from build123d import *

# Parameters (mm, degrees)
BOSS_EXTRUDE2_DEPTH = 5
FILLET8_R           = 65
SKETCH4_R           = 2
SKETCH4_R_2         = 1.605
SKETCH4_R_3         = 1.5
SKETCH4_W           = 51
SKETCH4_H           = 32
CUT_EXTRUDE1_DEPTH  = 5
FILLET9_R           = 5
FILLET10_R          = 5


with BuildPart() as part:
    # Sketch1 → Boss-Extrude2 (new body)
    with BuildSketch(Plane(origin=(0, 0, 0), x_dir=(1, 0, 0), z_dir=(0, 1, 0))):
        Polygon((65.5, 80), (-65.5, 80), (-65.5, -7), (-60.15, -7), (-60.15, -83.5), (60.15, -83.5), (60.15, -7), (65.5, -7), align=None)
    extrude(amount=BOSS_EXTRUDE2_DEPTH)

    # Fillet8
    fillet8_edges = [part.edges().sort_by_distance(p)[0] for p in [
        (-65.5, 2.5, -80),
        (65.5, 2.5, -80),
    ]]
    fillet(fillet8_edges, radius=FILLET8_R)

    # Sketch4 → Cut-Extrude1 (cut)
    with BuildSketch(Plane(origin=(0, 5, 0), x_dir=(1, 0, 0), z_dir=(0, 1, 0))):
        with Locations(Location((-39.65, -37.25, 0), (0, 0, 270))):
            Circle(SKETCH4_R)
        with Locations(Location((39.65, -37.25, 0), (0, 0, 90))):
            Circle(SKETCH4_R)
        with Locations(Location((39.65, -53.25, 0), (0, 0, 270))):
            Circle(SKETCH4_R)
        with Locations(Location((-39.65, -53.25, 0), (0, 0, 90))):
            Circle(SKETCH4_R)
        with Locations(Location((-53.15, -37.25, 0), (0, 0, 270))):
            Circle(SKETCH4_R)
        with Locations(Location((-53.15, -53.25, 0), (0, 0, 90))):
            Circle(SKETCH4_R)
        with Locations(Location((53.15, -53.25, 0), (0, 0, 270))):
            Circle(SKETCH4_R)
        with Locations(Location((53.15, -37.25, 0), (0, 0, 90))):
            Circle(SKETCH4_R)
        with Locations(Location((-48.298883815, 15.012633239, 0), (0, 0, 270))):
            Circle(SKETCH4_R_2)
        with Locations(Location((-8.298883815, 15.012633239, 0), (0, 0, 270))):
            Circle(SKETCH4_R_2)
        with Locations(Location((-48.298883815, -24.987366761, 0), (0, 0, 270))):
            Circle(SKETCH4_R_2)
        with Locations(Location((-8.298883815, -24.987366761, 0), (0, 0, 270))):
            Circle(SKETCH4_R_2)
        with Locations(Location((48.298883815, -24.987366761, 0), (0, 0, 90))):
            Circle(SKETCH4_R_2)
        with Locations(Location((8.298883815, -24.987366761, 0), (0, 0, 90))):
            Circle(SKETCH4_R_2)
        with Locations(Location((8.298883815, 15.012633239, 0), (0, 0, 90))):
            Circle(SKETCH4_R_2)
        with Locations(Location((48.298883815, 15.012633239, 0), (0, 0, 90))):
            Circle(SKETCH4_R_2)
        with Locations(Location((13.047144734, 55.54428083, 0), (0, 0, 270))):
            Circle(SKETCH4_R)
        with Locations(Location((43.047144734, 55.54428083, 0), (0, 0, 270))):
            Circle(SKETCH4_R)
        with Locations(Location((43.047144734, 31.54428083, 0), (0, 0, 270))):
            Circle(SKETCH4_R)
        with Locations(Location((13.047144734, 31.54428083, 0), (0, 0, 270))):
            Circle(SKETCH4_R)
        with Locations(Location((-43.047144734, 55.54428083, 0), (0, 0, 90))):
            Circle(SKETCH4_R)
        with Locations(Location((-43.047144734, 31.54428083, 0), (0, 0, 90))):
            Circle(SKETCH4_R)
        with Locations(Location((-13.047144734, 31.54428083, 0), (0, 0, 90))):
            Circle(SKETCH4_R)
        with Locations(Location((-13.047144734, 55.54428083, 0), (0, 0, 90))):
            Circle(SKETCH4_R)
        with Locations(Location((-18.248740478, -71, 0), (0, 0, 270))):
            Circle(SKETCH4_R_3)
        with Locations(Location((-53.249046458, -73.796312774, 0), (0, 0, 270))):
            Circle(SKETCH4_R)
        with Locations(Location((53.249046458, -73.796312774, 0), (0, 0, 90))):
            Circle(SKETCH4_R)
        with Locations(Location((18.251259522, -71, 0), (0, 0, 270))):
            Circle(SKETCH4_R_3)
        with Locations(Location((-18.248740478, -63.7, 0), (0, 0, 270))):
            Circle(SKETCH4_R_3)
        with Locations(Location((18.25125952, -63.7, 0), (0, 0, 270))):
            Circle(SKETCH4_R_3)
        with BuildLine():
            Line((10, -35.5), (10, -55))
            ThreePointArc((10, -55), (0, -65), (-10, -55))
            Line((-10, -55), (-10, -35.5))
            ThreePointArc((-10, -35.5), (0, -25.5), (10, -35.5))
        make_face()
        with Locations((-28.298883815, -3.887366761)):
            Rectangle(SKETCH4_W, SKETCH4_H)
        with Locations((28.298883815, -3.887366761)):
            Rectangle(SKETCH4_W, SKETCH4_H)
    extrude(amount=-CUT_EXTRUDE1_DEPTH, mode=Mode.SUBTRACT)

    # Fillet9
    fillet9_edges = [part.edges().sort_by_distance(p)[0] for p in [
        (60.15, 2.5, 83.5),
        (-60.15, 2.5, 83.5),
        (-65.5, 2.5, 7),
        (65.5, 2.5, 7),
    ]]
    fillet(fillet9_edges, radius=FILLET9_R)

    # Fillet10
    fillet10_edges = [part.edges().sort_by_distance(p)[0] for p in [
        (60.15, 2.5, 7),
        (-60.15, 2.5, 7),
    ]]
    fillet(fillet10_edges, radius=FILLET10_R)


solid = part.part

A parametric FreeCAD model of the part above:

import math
import FreeCAD as App
import Part
import Sketcher

V = App.Vector
Q = App.Units.Quantity


def edges_at(feature, points):
    """Names of the edges that pass closest to the given points."""
    edges = feature.Shape.Edges
    near = lambda p: min(range(len(edges)), key=lambda i: edges[i].distToShape(Part.Vertex(*p))[0])
    return sorted({f"Edge{near(p) + 1}" for p in points})


def add_polygon(sketch, points):
    """Adds a closed chain of lines whose ends are joined by coincident constraints."""
    first, n = sketch.GeometryCount, len(points)
    for a, b in zip(points, points[1:] + points[:1]):
        sketch.addGeometry(Part.LineSegment(App.Vector(*a, 0), App.Vector(*b, 0)), False)
    for i in range(n):
        sketch.addConstraint(Sketcher.Constraint("Coincident", first + i, 2, first + (i + 1) % n, 1))

doc = App.newDocument("Part")
body = doc.addObject("PartDesign::Body", "Body")

# Sketch on XZ plane
sketch1 = body.newObject("Sketcher::SketchObject", "Sketch")
sketch1.AttachmentSupport = (doc.getObject("XZ_Plane"), [""])
sketch1.MapMode = "FlatFace"
add_polygon(sketch1, [(66, -80), (-66, -80), (-66, 7), (-60, 7), (-60, 84), (60, 84), (60, 7), (66, 7)])  # lines 0-7
sketch1.addConstraint(Sketcher.Constraint("Horizontal", 0))
sketch1.addConstraint(Sketcher.Constraint("Vertical", 1))
sketch1.addConstraint(Sketcher.Constraint("Horizontal", 2))
sketch1.addConstraint(Sketcher.Constraint("Vertical", 3))
sketch1.addConstraint(Sketcher.Constraint("Horizontal", 4))
sketch1.addConstraint(Sketcher.Constraint("Vertical", 5))
sketch1.addConstraint(Sketcher.Constraint("Horizontal", 6))
sketch1.addConstraint(Sketcher.Constraint("Vertical", 7))
sketch1.addConstraint(Sketcher.Constraint("Symmetric", 2, 2, 5, 2, -2))
sketch1.addConstraint(Sketcher.Constraint("Equal", 2, 6))
sketch1.addConstraint(Sketcher.Constraint("DistanceX", 0, 2, 0, 1, Q("131 mm")))
sketch1.addConstraint(Sketcher.Constraint("DistanceY", 1, 1, 1, 2, Q("87 mm")))
sketch1.addConstraint(Sketcher.Constraint("DistanceX", 4, 1, 4, 2, Q("120.3 mm")))
sketch1.addConstraint(Sketcher.Constraint("DistanceY", 3, 1, 3, 2, Q("76.5 mm")))
sketch1.addConstraint(Sketcher.Constraint("DistanceY", 0, 2, -1, 1, Q("80 mm")))
pad1 = body.newObject("PartDesign::Pad", "Pad")
pad1.Profile = sketch1
pad1.Length = 5
pad1.Reversed = True
doc.recompute()

fillet = body.newObject("PartDesign::Fillet", "Fillet")
fillet.Base = (pad1, edges_at(pad1, [(-65.5, 2.5, -80), (65.5, 2.5, -80)]))
fillet.Radius = 65

# Sketch on XZ plane
sketch2 = body.newObject("Sketcher::SketchObject", "Sketch001")
sketch2.AttachmentSupport = (doc.getObject("XZ_Plane"), [""])
sketch2.MapMode = "FlatFace"
sketch2.AttachmentOffset = App.Placement(V(0, 0, -5), App.Rotation())
sketch2.addGeometry(Part.Circle(V(-39.6, 37.2, 0), V(0, 0, 1), 2), False)  # 0
sketch2.addGeometry(Part.Circle(V(39.6, 37.2, 0), V(0, 0, 1), 2), False)  # 1
sketch2.addGeometry(Part.Circle(V(39.6, 53.2, 0), V(0, 0, 1), 2), False)  # 2
sketch2.addGeometry(Part.Circle(V(-39.6, 53.2, 0), V(0, 0, 1), 2), False)  # 3
sketch2.addGeometry(Part.Circle(V(-53.1, 37.2, 0), V(0, 0, 1), 2), False)  # 4
sketch2.addGeometry(Part.Circle(V(-53.1, 53.2, 0), V(0, 0, 1), 2), False)  # 5
sketch2.addGeometry(Part.Circle(V(53.1, 53.2, 0), V(0, 0, 1), 2), False)  # 6
sketch2.addGeometry(Part.Circle(V(53.1, 37.2, 0), V(0, 0, 1), 2), False)  # 7
sketch2.addGeometry(Part.Circle(V(-48.3, -15, 0), V(0, 0, 1), 1.6), False)  # 8
sketch2.addGeometry(Part.Circle(V(-8.3, -15, 0), V(0, 0, 1), 1.6), False)  # 9
sketch2.addGeometry(Part.Circle(V(-48.3, 25, 0), V(0, 0, 1), 1.6), False)  # 10
sketch2.addGeometry(Part.Circle(V(-8.3, 25, 0), V(0, 0, 1), 1.6), False)  # 11
sketch2.addGeometry(Part.Circle(V(48.3, 25, 0), V(0, 0, 1), 1.6), False)  # 12
sketch2.addGeometry(Part.Circle(V(8.3, 25, 0), V(0, 0, 1), 1.6), False)  # 13
sketch2.addGeometry(Part.Circle(V(8.3, -15, 0), V(0, 0, 1), 1.6), False)  # 14
sketch2.addGeometry(Part.Circle(V(48.3, -15, 0), V(0, 0, 1), 1.6), False)  # 15
sketch2.addGeometry(Part.Circle(V(13, -55.5, 0), V(0, 0, 1), 2), False)  # 16
sketch2.addGeometry(Part.Circle(V(43, -55.5, 0), V(0, 0, 1), 2), False)  # 17
sketch2.addGeometry(Part.Circle(V(43, -31.5, 0), V(0, 0, 1), 2), False)  # 18
sketch2.addGeometry(Part.Circle(V(13, -31.5, 0), V(0, 0, 1), 2), False)  # 19
sketch2.addGeometry(Part.Circle(V(-43, -55.5, 0), V(0, 0, 1), 2), False)  # 20
sketch2.addGeometry(Part.Circle(V(-43, -31.5, 0), V(0, 0, 1), 2), False)  # 21
sketch2.addGeometry(Part.Circle(V(-13, -31.5, 0), V(0, 0, 1), 2), False)  # 22
sketch2.addGeometry(Part.Circle(V(-13, -55.5, 0), V(0, 0, 1), 2), False)  # 23
sketch2.addGeometry(Part.Circle(V(-18.2, 71, 0), V(0, 0, 1), 1.5), False)  # 24
sketch2.addGeometry(Part.Circle(V(-53.2, 73.8, 0), V(0, 0, 1), 2), False)  # 25
sketch2.addGeometry(Part.Circle(V(53.2, 73.8, 0), V(0, 0, 1), 2), False)  # 26
sketch2.addGeometry(Part.Circle(V(18.3, 71, 0), V(0, 0, 1), 1.5), False)  # 27
sketch2.addGeometry(Part.Circle(V(-18.2, 63.7, 0), V(0, 0, 1), 1.5), False)  # 28
sketch2.addGeometry(Part.Circle(V(18.3, 63.7, 0), V(0, 0, 1), 1.5), False)  # 29
sketch2.addGeometry(Part.LineSegment(V(10, 55, 0), V(10, 35.5, 0)), False)  # 30
sketch2.addGeometry(Part.ArcOfCircle(Part.Circle(V(0, 35.5, 0), V(0, 0, 1), 10), math.radians(180), math.radians(360)), False)  # 31
sketch2.addGeometry(Part.LineSegment(V(-10, 35.5, 0), V(-10, 55, 0)), False)  # 32
sketch2.addGeometry(Part.ArcOfCircle(Part.Circle(V(0, 55, 0), V(0, 0, 1), 10), math.radians(0), math.radians(180)), False)  # 33
add_polygon(sketch2, [(-53.8, -12.1), (-53.8, 19.9), (-2.8, 19.9), (-2.8, -12.1)])  # lines 34-37
add_polygon(sketch2, [(2.8, -12.1), (2.8, 19.9), (53.8, 19.9), (53.8, -12.1)])  # lines 38-41
sketch2.addConstraint(Sketcher.Constraint("Tangent", 30, 2, 31, 2))
sketch2.addConstraint(Sketcher.Constraint("Tangent", 31, 1, 32, 1))
sketch2.addConstraint(Sketcher.Constraint("Tangent", 32, 2, 33, 2))
sketch2.addConstraint(Sketcher.Constraint("Tangent", 33, 1, 30, 1))
sketch2.addConstraint(Sketcher.Constraint("Vertical", 30))
sketch2.addConstraint(Sketcher.Constraint("Vertical", 32))
sketch2.addConstraint(Sketcher.Constraint("Vertical", 34))
sketch2.addConstraint(Sketcher.Constraint("Horizontal", 35))
sketch2.addConstraint(Sketcher.Constraint("Vertical", 36))
sketch2.addConstraint(Sketcher.Constraint("Horizontal", 37))
sketch2.addConstraint(Sketcher.Constraint("Vertical", 38))
sketch2.addConstraint(Sketcher.Constraint("Horizontal", 39))
sketch2.addConstraint(Sketcher.Constraint("Vertical", 40))
sketch2.addConstraint(Sketcher.Constraint("Horizontal", 41))
sketch2.addConstraint(Sketcher.Constraint("Equal", 0, 1))
sketch2.addConstraint(Sketcher.Constraint("Equal", 1, 2))
sketch2.addConstraint(Sketcher.Constraint("Equal", 2, 3))
sketch2.addConstraint(Sketcher.Constraint("Equal", 3, 4))
sketch2.addConstraint(Sketcher.Constraint("Equal", 4, 5))
sketch2.addConstraint(Sketcher.Constraint("Equal", 5, 6))
sketch2.addConstraint(Sketcher.Constraint("Equal", 6, 7))
sketch2.addConstraint(Sketcher.Constraint("Equal", 8, 9))
sketch2.addConstraint(Sketcher.Constraint("Equal", 9, 10))
sketch2.addConstraint(Sketcher.Constraint("Equal", 10, 11))
sketch2.addConstraint(Sketcher.Constraint("Equal", 11, 12))
sketch2.addConstraint(Sketcher.Constraint("Equal", 12, 13))
sketch2.addConstraint(Sketcher.Constraint("Equal", 13, 14))
sketch2.addConstraint(Sketcher.Constraint("Equal", 14, 15))
sketch2.addConstraint(Sketcher.Constraint("Equal", 7, 16))
sketch2.addConstraint(Sketcher.Constraint("Equal", 16, 17))
sketch2.addConstraint(Sketcher.Constraint("Equal", 17, 18))
sketch2.addConstraint(Sketcher.Constraint("Equal", 18, 19))
sketch2.addConstraint(Sketcher.Constraint("Equal", 19, 20))
sketch2.addConstraint(Sketcher.Constraint("Equal", 20, 21))
sketch2.addConstraint(Sketcher.Constraint("Equal", 21, 22))
sketch2.addConstraint(Sketcher.Constraint("Equal", 22, 23))
sketch2.addConstraint(Sketcher.Constraint("Equal", 23, 25))
sketch2.addConstraint(Sketcher.Constraint("Equal", 25, 26))
sketch2.addConstraint(Sketcher.Constraint("Equal", 24, 27))
sketch2.addConstraint(Sketcher.Constraint("Equal", 27, 28))
sketch2.addConstraint(Sketcher.Constraint("Equal", 28, 29))
sketch2.addConstraint(Sketcher.Constraint("Symmetric", 0, 3, 1, 3, -2))
sketch2.addConstraint(Sketcher.Constraint("Symmetric", 2, 3, 3, 3, -2))
sketch2.addConstraint(Sketcher.Constraint("Symmetric", 5, 3, 6, 3, -2))
sketch2.addConstraint(Sketcher.Constraint("Symmetric", 4, 3, 7, 3, -2))
sketch2.addConstraint(Sketcher.Constraint("Symmetric", 10, 3, 12, 3, -2))
sketch2.addConstraint(Sketcher.Constraint("Symmetric", 11, 3, 13, 3, -2))
sketch2.addConstraint(Sketcher.Constraint("Symmetric", 9, 3, 14, 3, -2))
sketch2.addConstraint(Sketcher.Constraint("Symmetric", 8, 3, 15, 3, -2))
sketch2.addConstraint(Sketcher.Constraint("Symmetric", 17, 3, 20, 3, -2))
sketch2.addConstraint(Sketcher.Constraint("Symmetric", 18, 3, 21, 3, -2))
sketch2.addConstraint(Sketcher.Constraint("Symmetric", 19, 3, 22, 3, -2))
sketch2.addConstraint(Sketcher.Constraint("Symmetric", 16, 3, 23, 3, -2))
sketch2.addConstraint(Sketcher.Constraint("Symmetric", 25, 3, 26, 3, -2))
sketch2.addConstraint(Sketcher.Constraint("Symmetric", 35, 2, 38, 2, -2))
sketch2.addConstraint(Sketcher.Constraint("Symmetric", 37, 2, 40, 2, -2))
sketch2.addConstraint(Sketcher.Constraint("PointOnObject", 31, 3, -2))
sketch2.addConstraint(Sketcher.Constraint("Horizontal", 1, 3, 4, 3))
sketch2.addConstraint(Sketcher.Constraint("Horizontal", 3, 3, 5, 3))
sketch2.addConstraint(Sketcher.Constraint("Horizontal", 8, 3, 9, 3))
sketch2.addConstraint(Sketcher.Constraint("Horizontal", 10, 3, 11, 3))
sketch2.addConstraint(Sketcher.Constraint("Horizontal", 16, 3, 17, 3))
sketch2.addConstraint(Sketcher.Constraint("Horizontal", 18, 3, 19, 3))
sketch2.addConstraint(Sketcher.Constraint("Horizontal", 24, 3, 27, 3))
sketch2.addConstraint(Sketcher.Constraint("Horizontal", 28, 3, 29, 3))
sketch2.addConstraint(Sketcher.Constraint("Vertical", 1, 3, 2, 3))
sketch2.addConstraint(Sketcher.Constraint("Vertical", 4, 3, 5, 3))
sketch2.addConstraint(Sketcher.Constraint("Vertical", 8, 3, 10, 3))
sketch2.addConstraint(Sketcher.Constraint("Vertical", 9, 3, 11, 3))
sketch2.addConstraint(Sketcher.Constraint("Vertical", 17, 3, 18, 3))
sketch2.addConstraint(Sketcher.Constraint("Vertical", 16, 3, 19, 3))
sketch2.addConstraint(Sketcher.Constraint("Vertical", 24, 3, 28, 3))
sketch2.addConstraint(Sketcher.Constraint("Vertical", 27, 3, 29, 3))
sketch2.addConstraint(Sketcher.Constraint("Diameter", 0, Q("4 mm")))
sketch2.addConstraint(Sketcher.Constraint("Diameter", 24, Q("3 mm")))
sketch2.addConstraint(Sketcher.Constraint("Radius", 31, Q("10 mm")))
sketch2.addConstraint(Sketcher.Constraint("Diameter", 8, Q("3.21 mm")))
sketch2.addConstraint(Sketcher.Constraint("DistanceX", 35, 1, 35, 2, Q("51 mm")))
sketch2.addConstraint(Sketcher.Constraint("DistanceY", 34, 1, 34, 2, Q("32 mm")))
sketch2.addConstraint(Sketcher.Constraint("DistanceY", 30, 2, 30, 1, Q("19.5 mm")))
sketch2.addConstraint(Sketcher.Constraint("DistanceY", -1, 1, 24, 3, Q("71 mm")))
sketch2.addConstraint(Sketcher.Constraint("DistanceY", -1, 1, 33, 3, Q("55 mm")))
sketch2.addConstraint(Sketcher.Constraint("DistanceY", 1, 3, 2, 3, Q("16 mm")))
sketch2.addConstraint(Sketcher.Constraint("DistanceX", 8, 3, 9, 3, Q("40 mm")))
sketch2.addConstraint(Sketcher.Constraint("DistanceY", 8, 3, 10, 3, Q("40 mm")))
sketch2.addConstraint(Sketcher.Constraint("DistanceX", 16, 3, 17, 3, Q("30 mm")))
sketch2.addConstraint(Sketcher.Constraint("DistanceY", 17, 3, 18, 3, Q("24 mm")))
sketch2.addConstraint(Sketcher.Constraint("DistanceY", -1, 1, 28, 3, Q("63.7 mm")))
sketch2.addConstraint(Sketcher.Constraint("DistanceX", 0, 3, 1, 3, Q("79.3 mm")))
sketch2.addConstraint(Sketcher.Constraint("DistanceX", 4, 3, 0, 3, Q("13.5 mm")))
sketch2.addConstraint(Sketcher.Constraint("DistanceX", 24, 3, 27, 3, Q("36.5 mm")))
sketch2.addConstraint(Sketcher.Constraint("DistanceX", 34, 2, 10, 3, Q("5.5 mm")))
sketch2.addConstraint(Sketcher.Constraint("DistanceY", 34, 2, 10, 3, Q("5.1 mm")))
sketch2.addConstraint(Sketcher.Constraint("DistanceY", -1, 1, 0, 3, Q("37.25 mm")))
sketch2.addConstraint(Sketcher.Constraint("DistanceY", 16, 3, -1, 1, Q("55.544281 mm")))
sketch2.addConstraint(Sketcher.Constraint("DistanceX", 24, 3, -1, 1, Q("18.24874 mm")))
sketch2.addConstraint(Sketcher.Constraint("DistanceX", 14, 3, 16, 3, Q("4.748261 mm")))
sketch2.addConstraint(Sketcher.Constraint("DistanceX", 9, 3, 16, 3, Q("21.346029 mm")))
sketch2.addConstraint(Sketcher.Constraint("DistanceY", 8, 3, -1, 1, Q("15.012633 mm")))
sketch2.addConstraint(Sketcher.Constraint("DistanceX", 25, 3, -1, 1, Q("53.249046 mm")))
sketch2.addConstraint(Sketcher.Constraint("DistanceY", -1, 1, 25, 3, Q("73.796313 mm")))
pocket1 = body.newObject("PartDesign::Pocket", "Pocket")
pocket1.Profile = sketch2
pocket1.Length = 5
pocket1.Reversed = True
doc.recompute()

fillet2 = body.newObject("PartDesign::Fillet", "Fillet001")
fillet2.Base = (pocket1, edges_at(pocket1, [
    (60.15, 2.5, 83.5),
    (-60.15, 2.5, 83.5),
    (-65.5, 2.5, 7),
    (65.5, 2.5, 7),
]))
fillet2.Radius = 5
doc.recompute()

fillet3 = body.newObject("PartDesign::Fillet", "Fillet002")
fillet3.Base = (fillet2, edges_at(fillet2, [(60.15, 2.5, 7), (-60.15, 2.5, 7)]))
fillet3.Radius = 5

doc.recompute()
